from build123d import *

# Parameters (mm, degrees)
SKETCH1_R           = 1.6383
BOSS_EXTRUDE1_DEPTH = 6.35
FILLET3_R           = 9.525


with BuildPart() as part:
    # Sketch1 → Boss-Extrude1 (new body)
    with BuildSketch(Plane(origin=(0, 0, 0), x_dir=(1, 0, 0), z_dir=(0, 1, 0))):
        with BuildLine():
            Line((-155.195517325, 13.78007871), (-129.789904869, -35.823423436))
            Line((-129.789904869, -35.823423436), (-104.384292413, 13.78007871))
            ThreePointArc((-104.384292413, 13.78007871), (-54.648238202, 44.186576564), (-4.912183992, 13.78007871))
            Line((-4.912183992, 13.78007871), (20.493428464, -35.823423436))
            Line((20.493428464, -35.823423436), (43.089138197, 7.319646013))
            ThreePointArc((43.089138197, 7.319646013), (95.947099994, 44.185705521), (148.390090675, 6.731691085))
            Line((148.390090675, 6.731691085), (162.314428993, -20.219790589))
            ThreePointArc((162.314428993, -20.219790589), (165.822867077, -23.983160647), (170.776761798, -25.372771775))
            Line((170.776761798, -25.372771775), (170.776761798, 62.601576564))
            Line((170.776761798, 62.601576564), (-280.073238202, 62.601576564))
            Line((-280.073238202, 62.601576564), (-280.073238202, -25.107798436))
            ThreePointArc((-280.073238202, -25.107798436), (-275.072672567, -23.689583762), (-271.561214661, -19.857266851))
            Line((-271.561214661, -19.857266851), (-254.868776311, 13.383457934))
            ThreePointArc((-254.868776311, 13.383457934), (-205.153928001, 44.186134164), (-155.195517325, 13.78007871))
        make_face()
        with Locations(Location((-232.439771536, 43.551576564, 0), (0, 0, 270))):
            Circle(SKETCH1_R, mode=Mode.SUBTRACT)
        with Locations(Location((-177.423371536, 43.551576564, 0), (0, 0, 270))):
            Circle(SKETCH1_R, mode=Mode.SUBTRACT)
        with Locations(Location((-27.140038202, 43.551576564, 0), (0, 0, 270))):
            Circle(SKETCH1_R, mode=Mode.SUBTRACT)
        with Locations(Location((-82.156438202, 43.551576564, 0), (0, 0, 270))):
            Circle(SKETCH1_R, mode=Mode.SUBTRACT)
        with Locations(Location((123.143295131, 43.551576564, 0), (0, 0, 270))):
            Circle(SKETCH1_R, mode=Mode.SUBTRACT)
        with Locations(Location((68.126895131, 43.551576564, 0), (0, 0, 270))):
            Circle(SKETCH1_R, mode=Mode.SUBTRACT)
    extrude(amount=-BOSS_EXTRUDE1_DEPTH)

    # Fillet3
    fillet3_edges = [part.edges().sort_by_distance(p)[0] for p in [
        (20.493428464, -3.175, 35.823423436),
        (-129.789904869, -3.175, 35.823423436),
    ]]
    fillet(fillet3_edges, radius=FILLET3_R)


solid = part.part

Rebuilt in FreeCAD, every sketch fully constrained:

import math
import FreeCAD as App
import Part
import Sketcher
from FreeCAD import Vector
Q = App.Units.Quantity


def edges_at(feature, points):
    """Names of the edges that pass closest to the given points."""
    edges = feature.Shape.Edges
    near = lambda p: min(range(len(edges)), key=lambda i: edges[i].distToShape(Part.Vertex(*p))[0])
    return sorted({f"Edge{near(p) + 1}" for p in points})

doc = App.newDocument("Part")
params = doc.addObject("Spreadsheet::Sheet", "Params")
for row, (alias, value) in enumerate([
    ("sketch1_radius", "2.2 in"),
    ("sketch1_diameter", "0.129 in"),
    ("sketch1_radius2", "0.375 in"),
    ("sketch1_width", "17.75 in"),
    ("sketch1_height", "3.453125 in"),
    ("pad1_length", "0.25 in"),
    ("fillet_radius", "0.375 in"),
], start=1):
    params.set(f"A{row}", alias)
    params.set(f"B{row}", "=" + value)
    params.setAlias(f"B{row}", alias)

body = doc.addObject("PartDesign::Body", "Body")

# Sketch on XZ plane
sketch1 = body.newObject("Sketcher::SketchObject", "Sketch")
sketch1.AttachmentSupport = (doc.getObject("XZ_Plane"), [""])
sketch1.MapMode = "FlatFace"
sketch1.addGeometry([
    Part.LineSegment(Vector(-155.195517, -13.780079, 0), Vector(-129.789905, 35.823423, 0)),  # 0
    Part.LineSegment(Vector(-129.789905, 35.823423, 0), Vector(-104.384292, -13.780079, 0)),  # 1
    Part.ArcOfCircle(Part.Circle(Vector(-54.648238, 11.693423, 0), Vector(0, 0, 1), 55.88), math.radians(-152.879666), math.radians(-27.120334)),  # 2
    Part.LineSegment(Vector(-4.912184, -13.780079, 0), Vector(20.493428, 35.823423, 0)),  # 3
    Part.LineSegment(Vector(20.493428, 35.823423, 0), Vector(43.089138, -7.319646, 0)),  # 4
    Part.ArcOfCircle(Part.Circle(Vector(95.635095, 11.693423, 0), Vector(0, 0, 1), 55.88), math.radians(-160.108003), math.radians(-19.252174)),  # 5
    Part.LineSegment(Vector(148.390091, -6.731691, 0), Vector(162.314429, 20.219791, 0)),  # 6
    Part.ArcOfCircle(Part.Circle(Vector(170.776762, 15.847772, 0), Vector(0, 0, 1), 9.525), math.radians(90), math.radians(152.677105)),  # 7
    Part.LineSegment(Vector(170.776762, 25.372772, 0), Vector(170.776762, -62.601577, 0)),  # 8
    Part.LineSegment(Vector(170.776762, -62.601577, 0), Vector(-280.073238, -62.601577, 0)),  # 9
    Part.LineSegment(Vector(-280.073238, -62.601577, 0), Vector(-280.073238, 25.107798, 0)),  # 10
    Part.ArcOfCircle(Part.Circle(Vector(-280.073238, 15.582798, 0), Vector(0, 0, 1), 9.525), math.radians(26.664353), math.radians(90)),  # 11
    Part.LineSegment(Vector(-271.561215, 19.857267, 0), Vector(-254.868776, -13.383458, 0)),  # 12
    Part.ArcOfCircle(Part.Circle(Vector(-204.931572, 11.693423, 0), Vector(0, 0, 1), 55.88), math.radians(-153.335647), math.radians(-27.120334)),  # 13
    Part.Circle(Vector(-232.439772, -43.551577, 0), Vector(0, 0, 1), 1.6383),  # 14
    Part.Circle(Vector(-177.423372, -43.551577, 0), Vector(0, 0, 1), 1.6383),  # 15
    Part.Circle(Vector(-82.156438, -43.551577, 0), Vector(0, 0, 1), 1.6383),  # 16
    Part.Circle(Vector(-27.140038, -43.551577, 0), Vector(0, 0, 1), 1.6383),  # 17
    Part.Circle(Vector(68.126895, -43.551577, 0), Vector(0, 0, 1), 1.6383),  # 18
    Part.Circle(Vector(123.143295, -43.551577, 0), Vector(0, 0, 1), 1.6383),  # 19
], False)
sketch1.addConstraint([
    Sketcher.Constraint("Coincident", 0, 2, 1, 1),
    Sketcher.Constraint("Tangent", 1, 2, 2, 1),
    Sketcher.Constraint("Tangent", 2, 2, 3, 1),
    Sketcher.Constraint("Coincident", 3, 2, 4, 1),
    Sketcher.Constraint("Coincident", 4, 2, 5, 1),
    Sketcher.Constraint("Coincident", 5, 2, 6, 1),
    Sketcher.Constraint("Tangent", 6, 2, 7, 2),
    Sketcher.Constraint("Coincident", 7, 1, 8, 1),
    Sketcher.Constraint("Coincident", 8, 2, 9, 1),
    Sketcher.Constraint("Coincident", 9, 2, 10, 1),
    Sketcher.Constraint("Coincident", 10, 2, 11, 2),
    Sketcher.Constraint("Tangent", 11, 1, 12, 1),
    Sketcher.Constraint("Tangent", 12, 2, 13, 1),
    Sketcher.Constraint("Tangent", 13, 2, 0, 1),
    Sketcher.Constraint("Vertical", 8),
    Sketcher.Constraint("Horizontal", 9),
    Sketcher.Constraint("Vertical", 10),
    Sketcher.Constraint("Equal", 2, 5),
    Sketcher.Constraint("Equal", 7, 11),
    Sketcher.Constraint("Equal", 5, 13),
    Sketcher.Constraint("Equal", 14, 15),
    Sketcher.Constraint("Equal", 15, 16),
    Sketcher.Constraint("Equal", 16, 17),
    Sketcher.Constraint("Equal", 17, 18),
    Sketcher.Constraint("Equal", 18, 19),
    Sketcher.Constraint("Parallel", 0, 3),
    Sketcher.Constraint("Horizontal", 2, 3, 5, 3),
    Sketcher.Constraint("Horizontal", 5, 3, 13, 3),
    Sketcher.Constraint("Horizontal", 14, 3, 15, 3),
    Sketcher.Constraint("Horizontal", 15, 3, 16, 3),
    Sketcher.Constraint("Horizontal", 16, 3, 17, 3),
    Sketcher.Constraint("Horizontal", 17, 3, 18, 3),
    Sketcher.Constraint("Horizontal", 18, 3, 19, 3),
    Sketcher.Constraint("Horizontal", 1, 2, 2, 2),
    Sketcher.Constraint("Horizontal", 0, 2, 3, 2),
    Sketcher.Constraint("Vertical", 11, 3, 9, 2),
    Sketcher.Constraint("Radius", 2, Q("2.2 in")),
    Sketcher.Constraint("Diameter", 14, Q("0.129 in")),
    Sketcher.Constraint("Radius", 7, Q("0.375 in")),
    Sketcher.Constraint("DistanceX", 9, 2, 9, 1, Q("17.75 in")),
    Sketcher.Constraint("DistanceY", 10, 1, 10, 2, Q("3.453125 in")),
    Sketcher.Constraint("DistanceX", 11, 3, 7, 3, Q("17.75 in")),
    Sketcher.Constraint("DistanceY", 13, 3, 0, 2, Q("0.95 in")),
    Sketcher.Constraint("DistanceY", 8, 2, 19, 3, Q("0.75 in")),
    Sketcher.Constraint("DistanceX", 2, 3, 7, 3, Q("8.875 in")),
    Sketcher.Constraint("DistanceX", 14, 3, 13, 3, Q("1.083 in")),
    Sketcher.Constraint("DistanceY", 14, 3, 13, 3, Q("2.175 in")),
    Sketcher.Constraint("DistanceX", 14, 3, 15, 3, Q("2.166 in")),
    Sketcher.Constraint("DistanceX", 16, 3, 2, 3, Q("1.083 in")),
    Sketcher.Constraint("DistanceX", 16, 3, 17, 3, Q("2.166 in")),
    Sketcher.Constraint("DistanceX", 18, 3, 5, 3, Q("1.083 in")),
    Sketcher.Constraint("DistanceX", 18, 3, 19, 3, Q("2.166 in")),
    Sketcher.Constraint("DistanceY", 8, 2, 8, 1, 87.974348),
    Sketcher.Constraint("DistanceY", -1, 1, 11, 3, 15.582798),
    Sketcher.Constraint("Distance", 4, 48.702059),
    Sketcher.Constraint("Distance", 12, 37.196549),
    Sketcher.Constraint("DistanceX", 2, 3, -1, 1, 54.648238),
    Sketcher.Constraint("DistanceX", -1, 1, 4, 2, 43.089138),
    Sketcher.Constraint("DistanceX", -1, 1, 5, 2, 148.390091),
])
sketch1.setExpression("Constraints[36]", "Params.sketch1_radius")
sketch1.setExpression("Constraints[37]", "Params.sketch1_diameter")
sketch1.setExpression("Constraints[38]", "Params.sketch1_radius2")
sketch1.setExpression("Constraints[39]", "Params.sketch1_width")
sketch1.setExpression("Constraints[40]", "Params.sketch1_height")
pad1 = body.newObject("PartDesign::Pad", "Pad")
pad1.Profile = sketch1
pad1.setExpression("Length", "Params.pad1_length")
doc.recompute()

fillet = body.newObject("PartDesign::Fillet", "Fillet")
fillet.Base = (pad1, edges_at(pad1, [(20.493, -3.175, 35.823), (-129.79, -3.175, 35.823)]))
fillet.setExpression("Radius", "Params.fillet_radius")

doc.recompute()
